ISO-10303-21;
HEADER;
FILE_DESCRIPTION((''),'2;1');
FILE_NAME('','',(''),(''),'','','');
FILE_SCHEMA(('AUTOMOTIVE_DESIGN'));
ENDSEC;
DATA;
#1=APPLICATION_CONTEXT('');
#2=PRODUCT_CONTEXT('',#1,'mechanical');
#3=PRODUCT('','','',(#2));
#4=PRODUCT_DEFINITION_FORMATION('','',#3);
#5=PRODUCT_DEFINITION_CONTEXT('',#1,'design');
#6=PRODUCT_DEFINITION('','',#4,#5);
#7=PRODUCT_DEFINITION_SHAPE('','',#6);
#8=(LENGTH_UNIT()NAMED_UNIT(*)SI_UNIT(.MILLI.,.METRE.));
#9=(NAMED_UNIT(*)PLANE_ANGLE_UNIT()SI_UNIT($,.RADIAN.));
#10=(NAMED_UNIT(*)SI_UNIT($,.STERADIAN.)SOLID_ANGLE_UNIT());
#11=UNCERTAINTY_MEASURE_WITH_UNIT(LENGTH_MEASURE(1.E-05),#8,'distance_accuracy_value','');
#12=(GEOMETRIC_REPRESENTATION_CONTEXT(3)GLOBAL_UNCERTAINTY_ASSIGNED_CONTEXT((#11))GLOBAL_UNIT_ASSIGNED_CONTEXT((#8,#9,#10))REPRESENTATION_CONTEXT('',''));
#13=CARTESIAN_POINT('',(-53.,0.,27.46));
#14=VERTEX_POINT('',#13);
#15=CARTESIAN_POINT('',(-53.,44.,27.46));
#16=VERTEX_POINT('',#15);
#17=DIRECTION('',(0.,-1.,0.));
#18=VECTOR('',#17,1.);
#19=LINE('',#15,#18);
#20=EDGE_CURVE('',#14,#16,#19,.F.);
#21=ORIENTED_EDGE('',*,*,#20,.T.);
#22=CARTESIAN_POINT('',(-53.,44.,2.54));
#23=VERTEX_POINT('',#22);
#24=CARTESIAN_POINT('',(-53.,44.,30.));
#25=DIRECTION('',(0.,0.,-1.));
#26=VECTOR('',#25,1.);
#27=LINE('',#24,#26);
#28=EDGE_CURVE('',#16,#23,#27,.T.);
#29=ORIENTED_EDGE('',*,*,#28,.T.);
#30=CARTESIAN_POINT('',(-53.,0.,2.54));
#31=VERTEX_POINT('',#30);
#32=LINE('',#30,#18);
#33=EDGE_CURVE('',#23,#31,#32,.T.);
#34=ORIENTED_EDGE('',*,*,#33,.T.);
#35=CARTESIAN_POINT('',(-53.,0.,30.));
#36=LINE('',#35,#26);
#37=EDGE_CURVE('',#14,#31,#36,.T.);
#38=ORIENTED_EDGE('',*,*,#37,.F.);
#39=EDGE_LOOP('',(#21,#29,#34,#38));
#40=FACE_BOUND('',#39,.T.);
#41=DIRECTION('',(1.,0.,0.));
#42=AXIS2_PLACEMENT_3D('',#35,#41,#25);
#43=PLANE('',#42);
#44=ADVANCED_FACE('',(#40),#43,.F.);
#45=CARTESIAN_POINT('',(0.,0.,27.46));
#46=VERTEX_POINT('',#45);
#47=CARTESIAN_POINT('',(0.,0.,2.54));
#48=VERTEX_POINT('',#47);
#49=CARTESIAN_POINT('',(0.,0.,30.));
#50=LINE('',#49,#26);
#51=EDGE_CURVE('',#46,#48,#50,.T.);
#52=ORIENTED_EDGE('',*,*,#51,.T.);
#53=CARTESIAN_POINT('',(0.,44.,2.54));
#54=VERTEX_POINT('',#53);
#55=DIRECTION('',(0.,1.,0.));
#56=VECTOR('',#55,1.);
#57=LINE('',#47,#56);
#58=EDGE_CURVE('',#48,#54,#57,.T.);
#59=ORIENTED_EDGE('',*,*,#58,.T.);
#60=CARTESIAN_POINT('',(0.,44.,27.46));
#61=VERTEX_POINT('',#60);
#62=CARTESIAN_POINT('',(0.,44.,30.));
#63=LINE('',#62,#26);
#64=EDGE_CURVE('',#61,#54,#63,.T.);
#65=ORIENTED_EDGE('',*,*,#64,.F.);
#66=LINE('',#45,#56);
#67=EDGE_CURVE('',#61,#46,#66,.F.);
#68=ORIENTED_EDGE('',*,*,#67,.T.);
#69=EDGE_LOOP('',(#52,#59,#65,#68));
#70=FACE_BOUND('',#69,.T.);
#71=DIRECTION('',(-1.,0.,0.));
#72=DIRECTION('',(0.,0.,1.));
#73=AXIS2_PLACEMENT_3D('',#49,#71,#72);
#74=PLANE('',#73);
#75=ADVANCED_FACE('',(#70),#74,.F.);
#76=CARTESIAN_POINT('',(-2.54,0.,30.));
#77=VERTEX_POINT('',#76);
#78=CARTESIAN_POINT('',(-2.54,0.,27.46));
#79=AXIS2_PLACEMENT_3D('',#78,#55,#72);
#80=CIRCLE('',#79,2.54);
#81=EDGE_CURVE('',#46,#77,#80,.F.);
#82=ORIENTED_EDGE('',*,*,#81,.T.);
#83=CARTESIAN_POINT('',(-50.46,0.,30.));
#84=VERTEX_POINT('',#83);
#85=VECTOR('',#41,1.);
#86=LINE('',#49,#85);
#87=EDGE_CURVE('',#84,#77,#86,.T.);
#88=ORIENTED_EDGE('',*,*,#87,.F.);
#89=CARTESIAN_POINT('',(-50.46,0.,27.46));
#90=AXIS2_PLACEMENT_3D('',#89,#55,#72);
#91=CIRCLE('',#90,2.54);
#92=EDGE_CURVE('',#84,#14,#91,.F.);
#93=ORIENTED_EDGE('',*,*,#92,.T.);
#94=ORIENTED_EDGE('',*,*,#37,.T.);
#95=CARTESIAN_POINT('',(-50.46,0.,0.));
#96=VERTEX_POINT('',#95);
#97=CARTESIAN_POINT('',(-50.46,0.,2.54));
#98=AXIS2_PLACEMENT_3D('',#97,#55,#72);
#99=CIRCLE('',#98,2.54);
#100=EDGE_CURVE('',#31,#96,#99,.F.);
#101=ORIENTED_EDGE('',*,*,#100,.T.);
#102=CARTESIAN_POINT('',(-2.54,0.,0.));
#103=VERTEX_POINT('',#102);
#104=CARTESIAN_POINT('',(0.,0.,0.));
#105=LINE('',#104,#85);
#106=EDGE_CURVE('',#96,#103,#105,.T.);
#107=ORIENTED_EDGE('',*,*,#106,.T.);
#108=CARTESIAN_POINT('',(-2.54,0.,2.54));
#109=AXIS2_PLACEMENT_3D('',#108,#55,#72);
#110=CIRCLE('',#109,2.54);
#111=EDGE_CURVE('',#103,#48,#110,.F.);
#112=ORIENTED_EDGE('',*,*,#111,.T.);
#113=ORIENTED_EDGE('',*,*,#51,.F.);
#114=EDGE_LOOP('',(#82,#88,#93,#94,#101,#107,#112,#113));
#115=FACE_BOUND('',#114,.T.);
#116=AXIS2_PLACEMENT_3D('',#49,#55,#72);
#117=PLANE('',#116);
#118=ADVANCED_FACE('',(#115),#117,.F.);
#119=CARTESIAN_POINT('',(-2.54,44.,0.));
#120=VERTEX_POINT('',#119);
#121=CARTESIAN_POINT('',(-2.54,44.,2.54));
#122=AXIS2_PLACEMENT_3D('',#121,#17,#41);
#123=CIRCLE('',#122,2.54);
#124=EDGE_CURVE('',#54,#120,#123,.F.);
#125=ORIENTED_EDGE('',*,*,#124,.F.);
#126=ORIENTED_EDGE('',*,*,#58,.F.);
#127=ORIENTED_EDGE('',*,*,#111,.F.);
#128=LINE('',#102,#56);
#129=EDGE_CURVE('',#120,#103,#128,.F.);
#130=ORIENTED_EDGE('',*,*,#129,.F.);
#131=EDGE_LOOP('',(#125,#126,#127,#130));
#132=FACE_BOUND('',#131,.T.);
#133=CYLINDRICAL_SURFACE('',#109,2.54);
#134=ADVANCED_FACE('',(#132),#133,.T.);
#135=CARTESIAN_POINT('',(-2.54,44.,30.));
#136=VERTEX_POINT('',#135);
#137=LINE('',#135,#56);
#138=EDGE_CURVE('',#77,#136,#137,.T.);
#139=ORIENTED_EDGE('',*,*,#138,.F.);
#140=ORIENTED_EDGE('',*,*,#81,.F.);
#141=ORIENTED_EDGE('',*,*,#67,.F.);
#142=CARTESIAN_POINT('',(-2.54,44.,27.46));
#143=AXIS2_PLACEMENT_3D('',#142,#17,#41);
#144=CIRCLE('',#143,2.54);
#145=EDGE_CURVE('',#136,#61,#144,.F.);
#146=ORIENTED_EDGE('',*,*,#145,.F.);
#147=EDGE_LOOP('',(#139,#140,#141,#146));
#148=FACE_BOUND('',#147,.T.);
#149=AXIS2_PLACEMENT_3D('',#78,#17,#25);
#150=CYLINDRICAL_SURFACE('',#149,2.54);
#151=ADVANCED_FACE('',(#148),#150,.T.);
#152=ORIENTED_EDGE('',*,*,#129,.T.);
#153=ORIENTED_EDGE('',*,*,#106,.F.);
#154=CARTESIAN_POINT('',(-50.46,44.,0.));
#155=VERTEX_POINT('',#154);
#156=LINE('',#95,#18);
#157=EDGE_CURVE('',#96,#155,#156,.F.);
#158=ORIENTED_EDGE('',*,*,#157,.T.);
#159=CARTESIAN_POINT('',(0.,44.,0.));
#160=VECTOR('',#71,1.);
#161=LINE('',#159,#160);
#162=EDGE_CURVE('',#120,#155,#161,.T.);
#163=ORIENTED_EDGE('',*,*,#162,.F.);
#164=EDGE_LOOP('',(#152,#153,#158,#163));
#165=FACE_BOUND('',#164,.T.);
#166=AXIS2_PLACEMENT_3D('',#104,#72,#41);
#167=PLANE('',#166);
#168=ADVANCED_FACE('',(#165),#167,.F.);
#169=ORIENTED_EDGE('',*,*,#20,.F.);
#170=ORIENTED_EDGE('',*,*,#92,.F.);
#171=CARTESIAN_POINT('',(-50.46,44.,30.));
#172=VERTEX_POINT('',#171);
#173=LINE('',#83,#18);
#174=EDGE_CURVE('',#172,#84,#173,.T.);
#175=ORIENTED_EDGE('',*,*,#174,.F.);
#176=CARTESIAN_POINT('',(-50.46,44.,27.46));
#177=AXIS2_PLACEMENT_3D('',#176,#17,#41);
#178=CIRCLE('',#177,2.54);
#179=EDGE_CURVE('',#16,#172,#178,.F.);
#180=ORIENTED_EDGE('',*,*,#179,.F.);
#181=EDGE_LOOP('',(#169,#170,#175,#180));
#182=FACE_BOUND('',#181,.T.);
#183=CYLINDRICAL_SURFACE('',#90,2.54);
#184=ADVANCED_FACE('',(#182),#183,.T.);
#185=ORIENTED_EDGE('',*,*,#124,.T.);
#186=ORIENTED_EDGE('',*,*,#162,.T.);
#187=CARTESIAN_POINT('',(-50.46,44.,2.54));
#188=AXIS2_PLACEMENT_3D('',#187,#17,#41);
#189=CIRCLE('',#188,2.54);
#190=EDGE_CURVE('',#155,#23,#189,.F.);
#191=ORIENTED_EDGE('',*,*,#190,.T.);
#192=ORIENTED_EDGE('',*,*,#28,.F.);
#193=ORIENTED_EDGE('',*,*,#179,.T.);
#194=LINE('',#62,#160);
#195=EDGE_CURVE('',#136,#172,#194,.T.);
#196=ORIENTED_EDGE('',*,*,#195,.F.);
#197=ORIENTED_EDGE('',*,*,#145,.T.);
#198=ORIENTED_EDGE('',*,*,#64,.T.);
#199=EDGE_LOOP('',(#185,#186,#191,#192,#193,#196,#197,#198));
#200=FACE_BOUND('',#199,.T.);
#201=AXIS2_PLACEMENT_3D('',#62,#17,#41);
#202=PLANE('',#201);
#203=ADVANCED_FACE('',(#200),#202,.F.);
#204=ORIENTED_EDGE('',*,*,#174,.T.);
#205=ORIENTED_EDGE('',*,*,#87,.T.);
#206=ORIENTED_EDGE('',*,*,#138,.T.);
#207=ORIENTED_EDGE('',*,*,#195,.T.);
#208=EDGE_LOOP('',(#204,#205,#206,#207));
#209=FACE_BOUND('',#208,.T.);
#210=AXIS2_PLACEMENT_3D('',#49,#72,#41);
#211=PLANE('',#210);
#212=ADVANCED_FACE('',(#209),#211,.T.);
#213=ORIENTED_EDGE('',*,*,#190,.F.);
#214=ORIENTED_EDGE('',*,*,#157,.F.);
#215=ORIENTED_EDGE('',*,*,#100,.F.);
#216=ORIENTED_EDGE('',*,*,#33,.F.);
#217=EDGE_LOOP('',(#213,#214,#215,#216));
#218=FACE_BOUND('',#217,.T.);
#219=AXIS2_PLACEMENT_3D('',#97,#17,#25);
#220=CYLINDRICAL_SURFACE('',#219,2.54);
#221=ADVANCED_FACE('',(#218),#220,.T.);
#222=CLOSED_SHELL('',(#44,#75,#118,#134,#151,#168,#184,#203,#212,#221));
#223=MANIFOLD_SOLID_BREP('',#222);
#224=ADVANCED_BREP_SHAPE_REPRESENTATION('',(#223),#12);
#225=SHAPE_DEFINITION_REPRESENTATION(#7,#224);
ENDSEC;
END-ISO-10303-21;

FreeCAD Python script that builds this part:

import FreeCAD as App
import Part
import Sketcher

V = App.Vector
Q = App.Units.Quantity


def edges_at(feature, points):
    """Names of the edges that pass closest to the given points."""
    edges = feature.Shape.Edges
    near = lambda p: min(range(len(edges)), key=lambda i: edges[i].distToShape(Part.Vertex(*p))[0])
    return sorted({f"Edge{near(p) + 1}" for p in points})


def add_polygon(sketch, points):
    """Adds a closed chain of lines whose ends are joined by coincident constraints."""
    first, n = sketch.GeometryCount, len(points)
    for a, b in zip(points, points[1:] + points[:1]):
        sketch.addGeometry(Part.LineSegment(App.Vector(*a, 0), App.Vector(*b, 0)), False)
    for i in range(n):
        sketch.addConstraint(Sketcher.Constraint("Coincident", first + i, 2, first + (i + 1) % n, 1))

doc = App.newDocument("Part")
body = doc.addObject("PartDesign::Body", "Body")

# Sketch on XY plane
sketch1 = body.newObject("Sketcher::SketchObject", "Sketch")
sketch1.AttachmentSupport = (doc.getObject("XY_Plane"), [""])
sketch1.MapMode = "FlatFace"
add_polygon(sketch1, [(-53, 44), (-53, 0), (0, 0), (0, 44)])  # lines 0-3
sketch1.addConstraint([
    Sketcher.Constraint("Vertical", 0),
    Sketcher.Constraint("Horizontal", 1),
    Sketcher.Constraint("Vertical", 2),
    Sketcher.Constraint("Horizontal", 3),
    Sketcher.Constraint("Coincident", 1, 2, -1, 1),
    Sketcher.Constraint("DistanceX", 1, 1, 1, 2, Q("53 mm")),
    Sketcher.Constraint("DistanceY", 0, 2, 0, 1, Q("44 mm")),
])
pad1 = body.newObject("PartDesign::Pad", "Pad")
pad1.Profile = sketch1
pad1.Length = 30
doc.recompute()

fillet = body.newObject("PartDesign::Fillet", "Fillet")
fillet.Base = (pad1, edges_at(pad1, [
    (-53, 22, 30),
    (0, 22, 30),
    (-53, 22, 0),
    (0, 22, 0),
]))
fillet.Radius = 2.54

doc.recompute()
